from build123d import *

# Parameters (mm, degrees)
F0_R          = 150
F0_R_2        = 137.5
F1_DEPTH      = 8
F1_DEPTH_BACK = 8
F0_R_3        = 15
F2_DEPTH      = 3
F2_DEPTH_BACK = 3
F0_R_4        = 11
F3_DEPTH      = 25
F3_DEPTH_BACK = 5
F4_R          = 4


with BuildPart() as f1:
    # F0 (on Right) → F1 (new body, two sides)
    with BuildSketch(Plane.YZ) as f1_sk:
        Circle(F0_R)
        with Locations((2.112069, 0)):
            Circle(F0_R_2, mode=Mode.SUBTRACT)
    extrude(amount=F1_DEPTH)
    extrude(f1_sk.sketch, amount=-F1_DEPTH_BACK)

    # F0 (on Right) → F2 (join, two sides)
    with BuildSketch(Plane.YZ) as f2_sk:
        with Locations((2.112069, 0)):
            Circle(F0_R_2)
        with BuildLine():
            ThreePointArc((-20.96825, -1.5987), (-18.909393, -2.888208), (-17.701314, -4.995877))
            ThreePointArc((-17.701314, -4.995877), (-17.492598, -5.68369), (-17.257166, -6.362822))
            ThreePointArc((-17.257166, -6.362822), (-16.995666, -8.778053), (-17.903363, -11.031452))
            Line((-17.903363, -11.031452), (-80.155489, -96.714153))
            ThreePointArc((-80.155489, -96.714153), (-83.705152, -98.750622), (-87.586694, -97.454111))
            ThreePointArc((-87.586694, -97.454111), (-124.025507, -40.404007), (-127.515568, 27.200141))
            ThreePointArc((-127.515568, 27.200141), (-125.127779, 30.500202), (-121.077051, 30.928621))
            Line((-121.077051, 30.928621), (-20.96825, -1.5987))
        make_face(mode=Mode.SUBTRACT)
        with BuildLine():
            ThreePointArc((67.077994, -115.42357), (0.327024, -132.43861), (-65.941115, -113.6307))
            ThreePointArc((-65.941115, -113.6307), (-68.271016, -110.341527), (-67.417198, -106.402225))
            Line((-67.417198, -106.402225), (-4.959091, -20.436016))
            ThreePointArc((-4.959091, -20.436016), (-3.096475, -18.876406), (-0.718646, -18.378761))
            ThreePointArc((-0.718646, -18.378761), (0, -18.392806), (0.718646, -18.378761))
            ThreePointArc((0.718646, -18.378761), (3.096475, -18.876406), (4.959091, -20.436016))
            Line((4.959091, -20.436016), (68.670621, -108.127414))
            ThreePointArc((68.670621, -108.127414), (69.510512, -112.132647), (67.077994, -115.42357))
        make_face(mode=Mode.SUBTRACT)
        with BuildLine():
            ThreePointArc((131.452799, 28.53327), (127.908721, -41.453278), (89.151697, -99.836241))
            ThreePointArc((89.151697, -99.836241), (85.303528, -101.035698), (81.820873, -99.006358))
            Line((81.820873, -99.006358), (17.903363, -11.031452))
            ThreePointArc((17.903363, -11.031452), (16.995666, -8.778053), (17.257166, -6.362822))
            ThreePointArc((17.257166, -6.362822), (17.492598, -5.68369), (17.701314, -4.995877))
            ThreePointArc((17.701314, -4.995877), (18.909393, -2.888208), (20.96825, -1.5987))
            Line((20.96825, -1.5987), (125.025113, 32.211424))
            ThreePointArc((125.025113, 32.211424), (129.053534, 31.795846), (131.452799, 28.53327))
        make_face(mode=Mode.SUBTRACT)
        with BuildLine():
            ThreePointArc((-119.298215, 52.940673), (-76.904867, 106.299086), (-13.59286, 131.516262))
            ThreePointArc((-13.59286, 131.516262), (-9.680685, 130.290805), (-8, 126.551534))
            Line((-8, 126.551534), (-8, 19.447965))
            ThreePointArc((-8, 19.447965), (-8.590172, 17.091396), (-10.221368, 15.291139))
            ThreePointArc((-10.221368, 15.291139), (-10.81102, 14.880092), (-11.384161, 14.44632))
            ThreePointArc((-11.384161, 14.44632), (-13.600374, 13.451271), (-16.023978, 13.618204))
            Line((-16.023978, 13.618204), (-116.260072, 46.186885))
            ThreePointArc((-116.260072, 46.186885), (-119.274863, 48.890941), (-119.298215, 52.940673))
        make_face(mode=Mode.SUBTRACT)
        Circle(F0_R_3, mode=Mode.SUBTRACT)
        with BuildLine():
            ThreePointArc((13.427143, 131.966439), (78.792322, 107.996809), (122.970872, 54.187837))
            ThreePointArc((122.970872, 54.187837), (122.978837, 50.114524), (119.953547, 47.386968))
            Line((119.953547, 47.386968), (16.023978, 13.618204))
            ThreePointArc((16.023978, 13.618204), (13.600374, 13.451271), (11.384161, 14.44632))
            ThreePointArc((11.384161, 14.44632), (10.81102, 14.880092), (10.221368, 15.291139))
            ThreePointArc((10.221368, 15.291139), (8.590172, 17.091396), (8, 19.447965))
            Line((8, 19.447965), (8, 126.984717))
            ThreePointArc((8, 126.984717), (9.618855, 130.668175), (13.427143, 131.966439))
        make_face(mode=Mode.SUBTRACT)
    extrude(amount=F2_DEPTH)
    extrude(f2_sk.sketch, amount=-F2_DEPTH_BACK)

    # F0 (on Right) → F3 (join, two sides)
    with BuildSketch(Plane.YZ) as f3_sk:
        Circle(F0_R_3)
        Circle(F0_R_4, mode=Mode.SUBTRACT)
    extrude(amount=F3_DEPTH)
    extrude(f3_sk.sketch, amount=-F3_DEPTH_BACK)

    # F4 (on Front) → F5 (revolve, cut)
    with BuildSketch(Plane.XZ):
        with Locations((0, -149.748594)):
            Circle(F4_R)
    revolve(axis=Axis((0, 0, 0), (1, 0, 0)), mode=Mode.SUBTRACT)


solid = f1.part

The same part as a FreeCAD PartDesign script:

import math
import FreeCAD as App
import Part
import Sketcher
Q = App.Units.Quantity

doc = App.newDocument("Part")
body = doc.addObject("PartDesign::Body", "Body")

# Sketch on YZ plane
sketch1 = body.newObject("Sketcher::SketchObject", "Sketch")
sketch1.AttachmentSupport = (doc.getObject("YZ_Plane"), [""])
sketch1.MapMode = "FlatFace"
sketch1.addGeometry(Part.Circle(App.Vector(0, 0, 0), App.Vector(0, 0, 1), 150), False)
sketch1.addGeometry(Part.Circle(App.Vector(2, 0, 0), App.Vector(0, 0, 1), 138), False)
sketch1.addConstraint(Sketcher.Constraint("Coincident", 0, 3, -1, 1))
sketch1.addConstraint(Sketcher.Constraint("PointOnObject", 1, 3, -1))
sketch1.addConstraint(Sketcher.Constraint("Diameter", 0, Q("300 mm")))
sketch1.addConstraint(Sketcher.Constraint("Diameter", 1, Q("275 mm")))
sketch1.addConstraint(Sketcher.Constraint("DistanceX", -1, 1, 1, 3, Q("2.112069 mm")))
pad1 = body.newObject("PartDesign::Pad", "Pad")
pad1.Profile = sketch1
pad1.Type = "TwoLengths"
pad1.Length = 8
pad1.Length2 = 8

# Sketch on YZ plane
sketch2 = body.newObject("Sketcher::SketchObject", "Sketch001")
sketch2.AttachmentSupport = (doc.getObject("YZ_Plane"), [""])
sketch2.MapMode = "FlatFace"
sketch2.addGeometry(Part.Circle(App.Vector(2.112069, 0, 0), App.Vector(0, 0, 1), 137.5), False)
sketch2.addGeometry(Part.ArcOfCircle(Part.Circle(App.Vector(64.625536, -111.06634, 0), App.Vector(0, 0, 1), 5), math.radians(-60.627102), math.radians(36)), False)
sketch2.addGeometry(Part.ArcOfCircle(Part.Circle(App.Vector(2.112069, 0.000002, 0), App.Vector(0, 0, 1), 132.450641), math.radians(-120.917302), math.radians(-60.627103)), False)
sketch2.addGeometry(Part.ArcOfCircle(Part.Circle(App.Vector(-63.372114, -109.341151, 0), App.Vector(0, 0, 1), 5), math.radians(143.999995), math.radians(239.0827)), False)
sketch2.addGeometry(Part.LineSegment(App.Vector(-67.417198, -106.402225, 0), App.Vector(-4.959091, -20.436016, 0)), False)
sketch2.addGeometry(Part.ArcOfCircle(Part.Circle(App.Vector(-0.914008, -23.37494, 0), App.Vector(0, 0, 1), 4.999997), math.radians(87.760747), math.radians(144.000006)), False)
sketch2.addGeometry(Part.ArcOfCircle(Part.Circle(App.Vector(0, -0.000163, 0), App.Vector(0, 0, 1), 18.392643), math.radians(-92.239258), math.radians(-87.760742)), False)
sketch2.addGeometry(Part.ArcOfCircle(Part.Circle(App.Vector(0.914008, -23.37494, 0), App.Vector(0, 0, 1), 4.999997), math.radians(35.999994), math.radians(92.239253)), False)
sketch2.addGeometry(Part.LineSegment(App.Vector(4.959091, -20.436016, 0), App.Vector(68.670621, -108.127414, 0)), False)
sketch2.addGeometry(Part.LineSegment(App.Vector(-121.077051, 30.928621, 0), App.Vector(-20.96825, -1.5987, 0)), False)
sketch2.addGeometry(Part.ArcOfCircle(Part.Circle(App.Vector(-22.51334, -6.353987, 0), App.Vector(0, 0, 1), 5.000005), math.radians(15.760786), math.radians(71.999964)), False)
sketch2.addGeometry(Part.ArcOfCircle(Part.Circle(App.Vector(-0.0008, -0.000252, 0), App.Vector(0, 0, 1), 18.391967), math.radians(-164.239314), math.radians(-159.760637)), False)
sketch2.addGeometry(Part.ArcOfCircle(Part.Circle(App.Vector(-21.948451, -8.092525, 0), App.Vector(0, 0, 1), 5.000003), math.radians(-35.999984), math.radians(20.239213)), False)
sketch2.addGeometry(Part.LineSegment(App.Vector(-17.903363, -11.031452, 0), App.Vector(-80.155489, -96.714153, 0)), False)
sketch2.addGeometry(Part.ArcOfCircle(Part.Circle(App.Vector(-84.200574, -93.775227, 0), App.Vector(0, 0, 1), 5), math.radians(-132.627103), math.radians(-35.999996)), False)
sketch2.addGeometry(Part.ArcOfCircle(Part.Circle(App.Vector(2.11207, 0.000001, 0), App.Vector(0, 0, 1), 132.45064), math.radians(168.149392), math.radians(227.372898)), False)
sketch2.addGeometry(Part.ArcOfCircle(Part.Circle(App.Vector(-122.622135, 26.173337, 0), App.Vector(0, 0, 1), 5.000001), math.radians(72.000012), math.radians(168.149383)), False)
sketch2.addGeometry(Part.ArcOfCircle(Part.Circle(App.Vector(126.570197, 27.45614, 0), App.Vector(0, 0, 1), 5.000001), math.radians(12.440519), math.radians(107.999985)), False)
sketch2.addGeometry(Part.ArcOfCircle(Part.Circle(App.Vector(2.112069, 0, 0), App.Vector(0, 0, 1), 132.450639), math.radians(-48.917302), math.radians(12.440503)), False)
sketch2.addGeometry(Part.ArcOfCircle(Part.Circle(App.Vector(85.865958, -96.06743, 0), App.Vector(0, 0, 1), 5.000001), math.radians(-143.999989), math.radians(-48.91731)), False)
sketch2.addGeometry(Part.LineSegment(App.Vector(81.820873, -99.006358, 0), App.Vector(17.903363, -11.031452, 0)), False)
sketch2.addGeometry(Part.ArcOfCircle(Part.Circle(App.Vector(21.948451, -8.092525, 0), App.Vector(0, 0, 1), 5.000003), math.radians(159.760787), math.radians(215.999984)), False)
sketch2.addGeometry(Part.ArcOfCircle(Part.Circle(App.Vector(0.0008, -0.000252, 0), App.Vector(0, 0, 1), 18.391967), math.radians(-20.239363), math.radians(-15.760686)), False)
sketch2.addGeometry(Part.ArcOfCircle(Part.Circle(App.Vector(22.51334, -6.353987, 0), App.Vector(0, 0, 1), 5.000005), math.radians(108.000036), math.radians(164.239214)), False)
sketch2.addGeometry(Part.LineSegment(App.Vector(20.96825, -1.5987, 0), App.Vector(125.025113, 32.211424, 0)), False)
sketch2.addGeometry(Part.Circle(App.Vector(0, 0, 0), App.Vector(0, 0, 1), 15), False)
sketch2.addGeometry(Part.ArcOfCircle(Part.Circle(App.Vector(-114.714987, 50.942168, 0), App.Vector(0, 0, 1), 5.000001), math.radians(156.440514), math.radians(251.999996)), False)
sketch2.addGeometry(Part.ArcOfCircle(Part.Circle(App.Vector(2.112071, -0.000002, 0), App.Vector(0, 0, 1), 132.450642), math.radians(96.809693), math.radians(156.440502)), False)
sketch2.addGeometry(Part.ArcOfCircle(Part.Circle(App.Vector(-13.000001, 126.551533, 0), App.Vector(0, 0, 1), 5.000001), math.radians(0.000006), math.radians(96.809681)), False)
sketch2.addGeometry(Part.LineSegment(App.Vector(-8, 126.551534, 0), App.Vector(-8, 19.447965, 0)), False)
sketch2.addGeometry(Part.ArcOfCircle(Part.Circle(App.Vector(-12.999999, 19.447965, 0), App.Vector(0, 0, 1), 4.999999), math.radians(-56.239245), math.radians(0.000004)), False)
sketch2.addGeometry(Part.ArcOfCircle(Part.Circle(App.Vector(-0.000036, 0.000057, 0), App.Vector(0, 0, 1), 18.392738), math.radians(123.760769), math.radians(128.239259)), False)
sketch2.addGeometry(Part.ArcOfCircle(Part.Circle(App.Vector(-14.478893, 18.373487, 0), App.Vector(0, 0, 1), 5), math.radians(-108.000004), math.radians(-51.760771)), False)
sketch2.addGeometry(Part.LineSegment(App.Vector(-16.023978, 13.618204, 0), App.Vector(-116.260072, 46.186885, 0)), False)
sketch2.addGeometry(Part.ArcOfCircle(Part.Circle(App.Vector(13, 126.984718, 0), App.Vector(0, 0, 1), 5), math.radians(85.099327), math.radians(180.000007)), False)
sketch2.addGeometry(Part.ArcOfCircle(Part.Circle(App.Vector(2.112069, 0, 0), App.Vector(0, 0, 1), 132.450639), math.radians(24.149392), math.radians(85.099328)), False)
sketch2.addGeometry(Part.ArcOfCircle(Part.Circle(App.Vector(118.408462, 52.142251, 0), App.Vector(0, 0, 1), 5.000001), math.radians(-72), math.radians(24.149383)), False)
sketch2.addGeometry(Part.LineSegment(App.Vector(119.953547, 47.386968, 0), App.Vector(16.023978, 13.618204, 0)), False)
sketch2.addGeometry(Part.ArcOfCircle(Part.Circle(App.Vector(14.478893, 18.373487, 0), App.Vector(0, 0, 1), 5), math.radians(-128.239229), math.radians(-71.999996)), False)
sketch2.addGeometry(Part.ArcOfCircle(Part.Circle(App.Vector(0.000036, 0.000057, 0), App.Vector(0, 0, 1), 18.392738), math.radians(51.760741), math.radians(56.239231)), False)
sketch2.addGeometry(Part.ArcOfCircle(Part.Circle(App.Vector(12.999999, 19.447965, 0), App.Vector(0, 0, 1), 4.999999), math.radians(179.999996), math.radians(236.239245)), False)
sketch2.addGeometry(Part.LineSegment(App.Vector(8, 19.447965, 0), App.Vector(8, 126.984717, 0)), False)
sketch2.addConstraint(Sketcher.Constraint("Coincident", 1, 1, 2, 2))
sketch2.addConstraint(Sketcher.Constraint("Coincident", 2, 1, 3, 2))
sketch2.addConstraint(Sketcher.Constraint("Coincident", 3, 1, 4, 1))
sketch2.addConstraint(Sketcher.Constraint("Coincident", 4, 2, 5, 2))
sketch2.addConstraint(Sketcher.Constraint("Coincident", 5, 1, 6, 1))
sketch2.addConstraint(Sketcher.Constraint("Coincident", 6, 2, 7, 2))
sketch2.addConstraint(Sketcher.Constraint("Coincident", 7, 1, 8, 1))
sketch2.addConstraint(Sketcher.Constraint("Coincident", 8, 2, 1, 2))
sketch2.addConstraint(Sketcher.Constraint("Coincident", 9, 2, 10, 2))
sketch2.addConstraint(Sketcher.Constraint("Coincident", 10, 1, 11, 1))
sketch2.addConstraint(Sketcher.Constraint("Coincident", 11, 2, 12, 2))
sketch2.addConstraint(Sketcher.Constraint("Coincident", 12, 1, 13, 1))
sketch2.addConstraint(Sketcher.Constraint("Coincident", 13, 2, 14, 2))
sketch2.addConstraint(Sketcher.Constraint("Coincident", 14, 1, 15, 2))
sketch2.addConstraint(Sketcher.Constraint("Coincident", 15, 1, 16, 2))
sketch2.addConstraint(Sketcher.Constraint("Coincident", 16, 1, 9, 1))
sketch2.addConstraint(Sketcher.Constraint("Coincident", 17, 1, 18, 2))
sketch2.addConstraint(Sketcher.Constraint("Coincident", 18, 1, 19, 2))
sketch2.addConstraint(Sketcher.Constraint("Coincident", 19, 1, 20, 1))
sketch2.addConstraint(Sketcher.Constraint("Coincident", 20, 2, 21, 2))
sketch2.addConstraint(Sketcher.Constraint("Coincident", 21, 1, 22, 1))
sketch2.addConstraint(Sketcher.Constraint("Coincident", 22, 2, 23, 2))
sketch2.addConstraint(Sketcher.Constraint("Coincident", 23, 1, 24, 1))
sketch2.addConstraint(Sketcher.Constraint("Coincident", 24, 2, 17, 2))
sketch2.addConstraint(Sketcher.Constraint("Coincident", 26, 1, 27, 2))
sketch2.addConstraint(Sketcher.Constraint("Coincident", 27, 1, 28, 2))
sketch2.addConstraint(Sketcher.Constraint("Coincident", 28, 1, 29, 1))
sketch2.addConstraint(Sketcher.Constraint("Coincident", 29, 2, 30, 2))
sketch2.addConstraint(Sketcher.Constraint("Coincident", 30, 1, 31, 1))
sketch2.addConstraint(Sketcher.Constraint("Coincident", 31, 2, 32, 2))
sketch2.addConstraint(Sketcher.Constraint("Coincident", 32, 1, 33, 1))
sketch2.addConstraint(Sketcher.Constraint("Coincident", 33, 2, 26, 2))
sketch2.addConstraint(Sketcher.Constraint("Coincident", 34, 1, 35, 2))
sketch2.addConstraint(Sketcher.Constraint("Coincident", 35, 1, 36, 2))
sketch2.addConstraint(Sketcher.Constraint("Coincident", 36, 1, 37, 1))
sketch2.addConstraint(Sketcher.Constraint("Coincident", 37, 2, 38, 2))
sketch2.addConstraint(Sketcher.Constraint("Coincident", 38, 1, 39, 1))
sketch2.addConstraint(Sketcher.Constraint("Coincident", 39, 2, 40, 2))
sketch2.addConstraint(Sketcher.Constraint("Coincident", 40, 1, 41, 1))
sketch2.addConstraint(Sketcher.Constraint("Coincident", 41, 2, 34, 2))
sketch2.addConstraint(Sketcher.Constraint("Vertical", 29))
sketch2.addConstraint(Sketcher.Constraint("Vertical", 41))
sketch2.addConstraint(Sketcher.Constraint("Coincident", 25, 3, -1, 1))
sketch2.addConstraint(Sketcher.Constraint("Coincident", 2, 3, 0, 3))
sketch2.addConstraint(Sketcher.Constraint("Coincident", 15, 3, 0, 3))
sketch2.addConstraint(Sketcher.Constraint("Coincident", 18, 3, 0, 3))
sketch2.addConstraint(Sketcher.Constraint("Coincident", 27, 3, 0, 3))
sketch2.addConstraint(Sketcher.Constraint("Coincident", 35, 3, 0, 3))
sketch2.addConstraint(Sketcher.Constraint("PointOnObject", 0, 3, -1))
sketch2.addConstraint(Sketcher.Constraint("PointOnObject", 6, 3, -2))
sketch2.addConstraint(Sketcher.Constraint("Diameter", 0, Q("275 mm")))
sketch2.addConstraint(Sketcher.Constraint("Diameter", 25, Q("30 mm")))
sketch2.addConstraint(Sketcher.Constraint("Radius", 1, Q("5 mm")))
sketch2.addConstraint(Sketcher.Constraint("Radius", 3, Q("5 mm")))
sketch2.addConstraint(Sketcher.Constraint("Radius", 14, Q("5 mm")))
sketch2.addConstraint(Sketcher.Constraint("Radius", 16, Q("5.000001 mm")))
sketch2.addConstraint(Sketcher.Constraint("Radius", 17, Q("5.000001 mm")))
sketch2.addConstraint(Sketcher.Constraint("Radius", 19, Q("5.000001 mm")))
sketch2.addConstraint(Sketcher.Constraint("Radius", 26, Q("5.000001 mm")))
sketch2.addConstraint(Sketcher.Constraint("Radius", 28, Q("5.000001 mm")))
sketch2.addConstraint(Sketcher.Constraint("Radius", 30, Q("4.999999 mm")))
sketch2.addConstraint(Sketcher.Constraint("Radius", 32, Q("5 mm")))
sketch2.addConstraint(Sketcher.Constraint("Radius", 34, Q("5 mm")))
sketch2.addConstraint(Sketcher.Constraint("Radius", 36, Q("5.000001 mm")))
sketch2.addConstraint(Sketcher.Constraint("Radius", 38, Q("5 mm")))
sketch2.addConstraint(Sketcher.Constraint("Radius", 40, Q("4.999999 mm")))
sketch2.addConstraint(Sketcher.Constraint("DistanceX", 28, 3, -1, 1, Q("13.000001 mm")))
sketch2.addConstraint(Sketcher.Constraint("DistanceX", -1, 1, 34, 3, Q("13 mm")))
sketch2.addConstraint(Sketcher.Constraint("Radius", 2, Q("132.450641 mm")))
sketch2.addConstraint(Sketcher.Constraint("Radius", 15, Q("132.45064 mm")))
sketch2.addConstraint(Sketcher.Constraint("Radius", 18, Q("132.450639 mm")))
sketch2.addConstraint(Sketcher.Constraint("Radius", 27, Q("132.450642 mm")))
sketch2.addConstraint(Sketcher.Constraint("Radius", 35, Q("132.450639 mm")))
sketch2.addConstraint(Sketcher.Constraint("Radius", 5, Q("4.999997 mm")))
sketch2.addConstraint(Sketcher.Constraint("Radius", 6, Q("18.392643 mm")))
sketch2.addConstraint(Sketcher.Constraint("Radius", 7, Q("4.999997 mm")))
sketch2.addConstraint(Sketcher.Constraint("Radius", 10, Q("5.000005 mm")))
sketch2.addConstraint(Sketcher.Constraint("Radius", 11, Q("18.391967 mm")))
sketch2.addConstraint(Sketcher.Constraint("Radius", 12, Q("5.000003 mm")))
sketch2.addConstraint(Sketcher.Constraint("Radius", 21, Q("5.000003 mm")))
sketch2.addConstraint(Sketcher.Constraint("Radius", 22, Q("18.391967 mm")))
sketch2.addConstraint(Sketcher.Constraint("Radius", 23, Q("5.000005 mm")))
sketch2.addConstraint(Sketcher.Constraint("Radius", 31, Q("18.392738 mm")))
sketch2.addConstraint(Sketcher.Constraint("Radius", 39, Q("18.392738 mm")))
sketch2.addConstraint(Sketcher.Constraint("DistanceY", 29, 2, 29, 1, Q("107.103569 mm")))
sketch2.addConstraint(Sketcher.Constraint("DistanceX", 11, 3, -1, 1, Q("0.0008 mm")))
sketch2.addConstraint(Sketcher.Constraint("DistanceX", -1, 1, 22, 3, Q("0.0008 mm")))
sketch2.addConstraint(Sketcher.Constraint("DistanceY", 2, 1, -1, 1, Q("113.6307 mm")))
sketch2.addConstraint(Sketcher.Constraint("DistanceX", 3, 1, -1, 1, Q("67.417198 mm")))
sketch2.addConstraint(Sketcher.Constraint("DistanceY", 9, 2, -1, 1, Q("1.5987 mm")))
sketch2.addConstraint(Sketcher.Constraint("DistanceX", -1, 1, 17, 1, Q("131.452799 mm")))
sketch2.addConstraint(Sketcher.Constraint("DistanceY", 23, 1, -1, 1, Q("1.5987 mm")))
sketch2.addConstraint(Sketcher.Constraint("Distance", 4, Q("106.260078 mm")))
sketch2.addConstraint(Sketcher.Constraint("Distance", 8, Q("108.392529 mm")))
sketch2.addConstraint(Sketcher.Constraint("Distance", 24, Q("109.411861 mm")))
sketch2.addConstraint(Sketcher.Constraint("DistanceY", 41, 1, 41, 2, Q("107.536752 mm")))
sketch2.addConstraint(Sketcher.Constraint("DistanceX", -1, 1, 0, 3, Q("2.112069 mm")))
sketch2.addConstraint(Sketcher.Constraint("DistanceY", 1, 3, -1, 1, Q("111.06634 mm")))
sketch2.addConstraint(Sketcher.Constraint("DistanceY", 3, 3, -1, 1, Q("109.341151 mm")))
sketch2.addConstraint(Sketcher.Constraint("DistanceY", 5, 3, -1, 1, Q("23.37494 mm")))
sketch2.addConstraint(Sketcher.Constraint("DistanceY", 7, 3, -1, 1, Q("23.37494 mm")))
sketch2.addConstraint(Sketcher.Constraint("DistanceX", 10, 3, -1, 1, Q("22.51334 mm")))
sketch2.addConstraint(Sketcher.Constraint("DistanceY", 11, 3, -1, 1, Q("0.000252 mm")))
sketch2.addConstraint(Sketcher.Constraint("DistanceX", 12, 3, -1, 1, Q("21.948451 mm")))
sketch2.addConstraint(Sketcher.Constraint("DistanceY", -1, 1, 17, 3, Q("27.45614 mm")))
sketch2.addConstraint(Sketcher.Constraint("DistanceX", -1, 1, 19, 3, Q("85.865958 mm")))
sketch2.addConstraint(Sketcher.Constraint("DistanceX", -1, 1, 21, 3, Q("21.948451 mm")))
sketch2.addConstraint(Sketcher.Constraint("DistanceY", 22, 3, -1, 1, Q("0.000252 mm")))
sketch2.addConstraint(Sketcher.Constraint("DistanceX", -1, 1, 23, 3, Q("22.51334 mm")))
sketch2.addConstraint(Sketcher.Constraint("DistanceX", -1, 1, 36, 3, Q("118.408462 mm")))
sketch2.addConstraint(Sketcher.Constraint("DistanceY", 1, 1, -1, 1, Q("115.42357 mm")))
sketch2.addConstraint(Sketcher.Constraint("DistanceX", 4, 2, -1, 1, Q("4.959091 mm")))
sketch2.addConstraint(Sketcher.Constraint("DistanceY", 5, 1, -1, 1, Q("18.378761 mm")))
sketch2.addConstraint(Sketcher.Constraint("DistanceY", 6, 2, -1, 1, Q("18.378761 mm")))
sketch2.addConstraint(Sketcher.Constraint("DistanceX", -1, 1, 7, 1, Q("4.959091 mm")))
sketch2.addConstraint(Sketcher.Constraint("DistanceX", 13, 2, -1, 1, Q("80.155489 mm")))
sketch2.addConstraint(Sketcher.Constraint("DistanceY", 14, 1, -1, 1, Q("97.454111 mm")))
sketch2.addConstraint(Sketcher.Constraint("DistanceY", -1, 1, 15, 1, Q("27.200141 mm")))
sketch2.addConstraint(Sketcher.Constraint("DistanceX", 16, 1, -1, 1, Q("121.077051 mm")))
sketch2.addConstraint(Sketcher.Constraint("DistanceY", -1, 1, 16, 1, Q("30.928621 mm")))
sketch2.addConstraint(Sketcher.Constraint("DistanceY", 18, 1, -1, 1, Q("99.836241 mm")))
sketch2.addConstraint(Sketcher.Constraint("DistanceY", 19, 1, -1, 1, Q("99.006358 mm")))
sketch2.addConstraint(Sketcher.Constraint("DistanceY", 21, 1, -1, 1, Q("6.362822 mm")))
sketch2.addConstraint(Sketcher.Constraint("DistanceX", 27, 1, -1, 1, Q("13.59286 mm")))
sketch2.addConstraint(Sketcher.Constraint("DistanceY", -1, 1, 30, 1, Q("15.291139 mm")))
sketch2.addConstraint(Sketcher.Constraint("DistanceX", 31, 2, -1, 1, Q("11.384161 mm")))
sketch2.addConstraint(Sketcher.Constraint("DistanceY", -1, 1, 31, 2, Q("14.44632 mm")))
sketch2.addConstraint(Sketcher.Constraint("DistanceX", 33, 2, -1, 1, Q("116.260072 mm")))
sketch2.addConstraint(Sketcher.Constraint("DistanceY", -1, 1, 34, 1, Q("131.966439 mm")))
sketch2.addConstraint(Sketcher.Constraint("DistanceY", -1, 1, 36, 1, Q("47.386968 mm")))
sketch2.addConstraint(Sketcher.Constraint("DistanceX", -1, 1, 38, 1, Q("11.384161 mm")))
sketch2.addConstraint(Sketcher.Constraint("DistanceY", -1, 1, 38, 1, Q("14.44632 mm")))
sketch2.addConstraint(Sketcher.Constraint("DistanceX", -1, 1, 39, 2, Q("10.221368 mm")))
sketch2.addConstraint(Sketcher.Constraint("DistanceY", -1, 1, 39, 2, Q("15.291139 mm")))
sketch2.addConstraint(Sketcher.Constraint("Distance", 13, Q("105.909643 mm")))
sketch2.addConstraint(Sketcher.Constraint("Distance", 20, Q("108.742964 mm")))
sketch2.addConstraint(Sketcher.Constraint("Distance", 33, Q("105.394466 mm")))
sketch2.addConstraint(Sketcher.Constraint("Distance", 37, Q("109.278016 mm")))
sketch2.addConstraint(Sketcher.Constraint("DistanceX", 14, 3, -1, 1, Q("84.200574 mm")))
sketch2.addConstraint(Sketcher.Constraint("DistanceX", 26, 3, -1, 1, Q("114.714987 mm")))
sketch2.addConstraint(Sketcher.Constraint("DistanceY", -1, 1, 30, 3, Q("19.447965 mm")))
sketch2.addConstraint(Sketcher.Constraint("DistanceX", 32, 3, -1, 1, Q("14.478893 mm")))
sketch2.addConstraint(Sketcher.Constraint("DistanceX", -1, 1, 38, 3, Q("14.478893 mm")))
sketch2.addConstraint(Sketcher.Constraint("DistanceX", 10, 1, -1, 1, Q("17.701314 mm")))
sketch2.addConstraint(Sketcher.Constraint("DistanceX", 11, 2, -1, 1, Q("17.257166 mm")))
sketch2.addConstraint(Sketcher.Constraint("DistanceX", -1, 1, 22, 2, Q("17.701314 mm")))
sketch2.addConstraint(Sketcher.Constraint("DistanceX", 26, 1, -1, 1, Q("119.298215 mm")))
sketch2.addConstraint(Sketcher.Constraint("DistanceY", -1, 1, 28, 1, Q("126.551534 mm")))
sketch2.addConstraint(Sketcher.Constraint("DistanceX", -1, 1, 35, 1, Q("122.970872 mm")))
sketch2.addConstraint(Sketcher.Constraint("DistanceY", -1, 1, 40, 1, Q("19.447965 mm")))
pad2 = body.newObject("PartDesign::Pad", "Pad001")
pad2.Profile = sketch2
pad2.Type = "TwoLengths"
pad2.Length = 3
pad2.Length2 = 3

# Sketch on YZ plane
sketch3 = body.newObject("Sketcher::SketchObject", "Sketch002")
sketch3.AttachmentSupport = (doc.getObject("YZ_Plane"), [""])
sketch3.MapMode = "FlatFace"
sketch3.addGeometry(Part.Circle(App.Vector(0, 0, 0), App.Vector(0, 0, 1), 15), False)
sketch3.addGeometry(Part.Circle(App.Vector(0, 0, 0), App.Vector(0, 0, 1), 11), False)
sketch3.addConstraint(Sketcher.Constraint("Coincident", 0, 3, -1, 1))
sketch3.addConstraint(Sketcher.Constraint("Coincident", 1, 3, -1, 1))
sketch3.addConstraint(Sketcher.Constraint("Diameter", 0, Q("30 mm")))
sketch3.addConstraint(Sketcher.Constraint("Diameter", 1, Q("22 mm")))
pad3 = body.newObject("PartDesign::Pad", "Pad002")
pad3.Profile = sketch3
pad3.Type = "TwoLengths"
pad3.Length = 25
pad3.Length2 = 5

# Sketch on XZ plane
sketch4 = body.newObject("Sketcher::SketchObject", "Sketch003")
sketch4.AttachmentSupport = (doc.getObject("XZ_Plane"), [""])
sketch4.MapMode = "FlatFace"
sketch4.addGeometry(Part.Circle(App.Vector(0, -149.7, 0), App.Vector(0, 0, 1), 4), False)
sketch4.addConstraint(Sketcher.Constraint("PointOnObject", 0, 3, -2))
sketch4.addConstraint(Sketcher.Constraint("Diameter", 0, Q("8 mm")))
sketch4.addConstraint(Sketcher.Constraint("DistanceY", 0, 3, -1, 1, Q("149.748594 mm")))
groove = body.newObject("PartDesign::Groove", "Groove")
groove.Profile = sketch4
groove.ReferenceAxis = (sketch4, ["H_Axis"])
groove.Angle = 360

doc.recompute()
